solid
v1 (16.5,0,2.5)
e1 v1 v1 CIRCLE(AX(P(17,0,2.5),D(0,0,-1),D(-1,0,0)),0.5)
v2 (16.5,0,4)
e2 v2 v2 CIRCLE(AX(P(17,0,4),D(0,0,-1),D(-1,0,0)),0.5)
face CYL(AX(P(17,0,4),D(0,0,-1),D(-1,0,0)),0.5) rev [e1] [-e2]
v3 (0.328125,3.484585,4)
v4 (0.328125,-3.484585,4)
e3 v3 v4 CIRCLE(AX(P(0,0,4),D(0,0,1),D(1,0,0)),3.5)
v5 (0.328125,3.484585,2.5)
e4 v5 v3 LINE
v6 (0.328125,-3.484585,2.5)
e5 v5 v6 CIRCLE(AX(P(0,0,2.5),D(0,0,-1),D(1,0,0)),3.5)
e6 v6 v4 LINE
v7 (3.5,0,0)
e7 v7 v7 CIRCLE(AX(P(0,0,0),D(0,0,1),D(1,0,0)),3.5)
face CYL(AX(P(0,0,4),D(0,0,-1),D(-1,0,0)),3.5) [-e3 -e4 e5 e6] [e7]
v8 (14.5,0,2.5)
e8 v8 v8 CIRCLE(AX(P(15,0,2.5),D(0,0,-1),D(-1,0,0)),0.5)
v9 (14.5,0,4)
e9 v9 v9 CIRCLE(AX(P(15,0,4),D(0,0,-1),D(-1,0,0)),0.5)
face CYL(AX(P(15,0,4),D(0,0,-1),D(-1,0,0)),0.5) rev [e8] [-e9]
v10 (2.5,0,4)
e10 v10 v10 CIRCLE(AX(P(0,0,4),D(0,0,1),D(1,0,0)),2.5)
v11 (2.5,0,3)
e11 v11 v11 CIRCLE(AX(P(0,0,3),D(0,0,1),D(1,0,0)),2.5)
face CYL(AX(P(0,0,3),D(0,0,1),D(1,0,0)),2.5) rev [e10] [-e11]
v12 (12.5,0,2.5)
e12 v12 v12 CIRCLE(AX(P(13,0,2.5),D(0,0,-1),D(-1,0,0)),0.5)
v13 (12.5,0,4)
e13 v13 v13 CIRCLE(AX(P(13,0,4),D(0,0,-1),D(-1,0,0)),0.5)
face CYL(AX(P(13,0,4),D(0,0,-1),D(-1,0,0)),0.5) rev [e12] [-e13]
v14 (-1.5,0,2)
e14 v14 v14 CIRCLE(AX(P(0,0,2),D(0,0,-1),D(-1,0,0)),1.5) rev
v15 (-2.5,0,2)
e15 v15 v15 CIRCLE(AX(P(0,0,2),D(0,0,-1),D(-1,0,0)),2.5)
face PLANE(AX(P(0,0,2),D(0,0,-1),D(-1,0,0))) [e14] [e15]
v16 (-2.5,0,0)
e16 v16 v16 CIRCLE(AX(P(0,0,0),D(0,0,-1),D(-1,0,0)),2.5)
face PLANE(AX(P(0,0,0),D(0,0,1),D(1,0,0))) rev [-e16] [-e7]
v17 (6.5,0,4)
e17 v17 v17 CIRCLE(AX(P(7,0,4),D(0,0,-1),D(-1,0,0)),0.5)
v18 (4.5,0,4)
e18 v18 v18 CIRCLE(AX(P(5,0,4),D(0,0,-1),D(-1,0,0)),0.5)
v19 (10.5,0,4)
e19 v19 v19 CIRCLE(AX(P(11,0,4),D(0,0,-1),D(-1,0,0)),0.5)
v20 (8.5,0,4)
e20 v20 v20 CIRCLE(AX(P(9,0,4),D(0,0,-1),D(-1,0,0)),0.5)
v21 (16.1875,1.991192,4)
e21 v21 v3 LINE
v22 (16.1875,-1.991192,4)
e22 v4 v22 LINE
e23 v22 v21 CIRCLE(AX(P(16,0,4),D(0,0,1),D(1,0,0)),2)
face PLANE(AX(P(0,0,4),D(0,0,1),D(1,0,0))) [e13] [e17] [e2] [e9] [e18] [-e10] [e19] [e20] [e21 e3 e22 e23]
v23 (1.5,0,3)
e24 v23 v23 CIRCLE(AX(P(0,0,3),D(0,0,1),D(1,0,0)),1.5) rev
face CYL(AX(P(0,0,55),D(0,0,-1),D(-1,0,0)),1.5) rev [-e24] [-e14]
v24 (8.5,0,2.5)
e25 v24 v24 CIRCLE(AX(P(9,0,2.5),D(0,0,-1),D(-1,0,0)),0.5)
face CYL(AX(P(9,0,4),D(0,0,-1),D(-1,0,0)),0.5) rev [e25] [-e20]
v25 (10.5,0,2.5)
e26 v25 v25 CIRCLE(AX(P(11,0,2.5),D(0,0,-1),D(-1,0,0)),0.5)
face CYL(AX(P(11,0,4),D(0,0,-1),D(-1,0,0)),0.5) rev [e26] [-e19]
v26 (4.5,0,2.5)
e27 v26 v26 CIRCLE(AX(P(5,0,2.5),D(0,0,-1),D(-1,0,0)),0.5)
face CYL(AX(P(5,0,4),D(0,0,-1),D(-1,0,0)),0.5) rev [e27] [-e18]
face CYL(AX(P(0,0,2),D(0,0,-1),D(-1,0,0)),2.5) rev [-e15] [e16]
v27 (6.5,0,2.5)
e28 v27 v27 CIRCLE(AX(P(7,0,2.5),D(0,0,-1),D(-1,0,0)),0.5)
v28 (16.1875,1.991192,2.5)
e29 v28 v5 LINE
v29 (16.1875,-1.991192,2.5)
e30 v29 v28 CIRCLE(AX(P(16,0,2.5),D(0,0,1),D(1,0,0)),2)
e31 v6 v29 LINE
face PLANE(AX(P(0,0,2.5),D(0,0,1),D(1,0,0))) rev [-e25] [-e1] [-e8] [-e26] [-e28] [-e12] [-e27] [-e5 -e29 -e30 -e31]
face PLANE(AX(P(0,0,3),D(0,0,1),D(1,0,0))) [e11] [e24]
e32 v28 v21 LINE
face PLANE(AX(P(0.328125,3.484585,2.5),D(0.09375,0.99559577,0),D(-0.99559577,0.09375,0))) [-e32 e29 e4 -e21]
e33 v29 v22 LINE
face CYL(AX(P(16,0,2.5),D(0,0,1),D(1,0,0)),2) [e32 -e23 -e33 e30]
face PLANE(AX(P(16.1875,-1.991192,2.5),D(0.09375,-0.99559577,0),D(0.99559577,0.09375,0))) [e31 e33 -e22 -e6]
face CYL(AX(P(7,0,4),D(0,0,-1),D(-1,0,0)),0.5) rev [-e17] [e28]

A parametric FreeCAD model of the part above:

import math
import FreeCAD as App
import Part
import Sketcher
from FreeCAD import Vector

doc = App.newDocument("Part")
body = doc.addObject("PartDesign::Body", "Body")

sketch1 = body.newObject("Sketcher::SketchObject", "Sketch")
sketch1.AttachmentSupport = (doc.getObject("XY_Plane"), [""])
sketch1.MapMode = "FlatFace"
sketch1.addGeometry(Part.Circle(Vector(0, 0, 0), Vector(0, 0, 1), 3.5), False)
sketch1.addConstraint([
    Sketcher.Constraint("Coincident", 0, 3, -1, 1),
    Sketcher.Constraint("Diameter", 0, 7.0),
])
pad1 = body.newObject("PartDesign::Pad", "Pad")
pad1.Profile = sketch1
pad1.Length = 4

sketch2 = body.newObject("Sketcher::SketchObject", "Sketch001")
sketch2.AttachmentSupport = (doc.getObject("XY_Plane"), [""])
sketch2.MapMode = "FlatFace"
sketch2.AttachmentOffset = App.Placement(Vector(0, 0, 2.5), App.Rotation())
sketch2.addGeometry([
    Part.LineSegment(Vector(16.2, 2, 0), Vector(0.3, 3.5, 0)),
    Part.ArcOfCircle(Part.Circle(Vector(0, 0, 0), Vector(0, 0, 1), 3.5), math.radians(-85), math.radians(85)),
    Part.LineSegment(Vector(0.3, -3.5, 0), Vector(16.2, -2, 0)),
    Part.ArcOfCircle(Part.Circle(Vector(16, 0, 0), Vector(0, 0, 1), 2), math.radians(-85), math.radians(85)),
], False)
sketch2.addConstraint([
    Sketcher.Constraint("Tangent", 0, 2, 1, 2),
    Sketcher.Constraint("Tangent", 1, 1, 2, 1),
    Sketcher.Constraint("Tangent", 2, 2, 3, 1),
    Sketcher.Constraint("Tangent", 3, 2, 0, 1),
    Sketcher.Constraint("Coincident", 1, 3, -1, 1),
    Sketcher.Constraint("PointOnObject", 3, 3, -1),
    Sketcher.Constraint("Radius", 3, 2.0),
    Sketcher.Constraint("Radius", 1, 3.5),
    Sketcher.Constraint("DistanceX", -1, 1, 3, 3, 16.0),
])
pad2 = body.newObject("PartDesign::Pad", "Pad001")
pad2.Profile = sketch2
pad2.Length = 1.5

sketch3 = body.newObject("Sketcher::SketchObject", "Sketch002")
sketch3.AttachmentSupport = (doc.getObject("XY_Plane"), [""])
sketch3.MapMode = "FlatFace"
sketch3.AttachmentOffset = App.Placement(Vector(0, 0, 2.5), App.Rotation())
sketch3.addGeometry([
    Part.Circle(Vector(7, 0, 0), Vector(0, 0, 1), 0.5),
    Part.Circle(Vector(9, 0, 0), Vector(0, 0, 1), 0.5),
    Part.Circle(Vector(11, 0, 0), Vector(0, 0, 1), 0.5),
    Part.Circle(Vector(13, 0, 0), Vector(0, 0, 1), 0.5),
    Part.Circle(Vector(15, 0, 0), Vector(0, 0, 1), 0.5),
    Part.Circle(Vector(5, 0, 0), Vector(0, 0, 1), 0.5),
    Part.Circle(Vector(17, 0, 0), Vector(0, 0, 1), 0.5),
], False)
sketch3.addConstraint([
    Sketcher.Constraint("Equal", 0, 1),
    Sketcher.Constraint("Equal", 1, 2),
    Sketcher.Constraint("Equal", 2, 3),
    Sketcher.Constraint("Equal", 3, 4),
    Sketcher.Constraint("Equal", 4, 5),
    Sketcher.Constraint("Equal", 5, 6),
    Sketcher.Constraint("PointOnObject", 0, 3, -1),
    Sketcher.Constraint("PointOnObject", 1, 3, -1),
    Sketcher.Constraint("PointOnObject", 2, 3, -1),
    Sketcher.Constraint("PointOnObject", 3, 3, -1),
    Sketcher.Constraint("PointOnObject", 4, 3, -1),
    Sketcher.Constraint("PointOnObject", 5, 3, -1),
    Sketcher.Constraint("PointOnObject", 6, 3, -1),
    Sketcher.Constraint("Diameter", 0, 1.0),
    Sketcher.Constraint("DistanceX", -1, 1, 0, 3, 7.0),
    Sketcher.Constraint("DistanceX", -1, 1, 1, 3, 9.0),
    Sketcher.Constraint("DistanceX", -1, 1, 2, 3, 11.0),
    Sketcher.Constraint("DistanceX", -1, 1, 3, 3, 13.0),
    Sketcher.Constraint("DistanceX", -1, 1, 4, 3, 15.0),
    Sketcher.Constraint("DistanceX", -1, 1, 5, 3, 5.0),
    Sketcher.Constraint("DistanceX", -1, 1, 6, 3, 17.0),
])
pocket1 = body.newObject("PartDesign::Pocket", "Pocket")
pocket1.Profile = sketch3
pocket1.Length = 1.5
pocket1.Reversed = True

sketch4 = body.newObject("Sketcher::SketchObject", "Sketch003")
sketch4.AttachmentSupport = (doc.getObject("XY_Plane"), [""])
sketch4.MapMode = "FlatFace"
sketch4.addGeometry(Part.Circle(Vector(0, 0, 0), Vector(0, 0, 1), 1.5), False)
sketch4.addConstraint([
    Sketcher.Constraint("Coincident", 0, 3, -1, 1),
    Sketcher.Constraint("Diameter", 0, 3.0),
])
pocket2 = body.newObject("PartDesign::Pocket", "Pocket001")
pocket2.Profile = sketch4
pocket2.Length = 55
pocket2.Reversed = True

sketch5 = body.newObject("Sketcher::SketchObject", "Sketch004")
sketch5.AttachmentSupport = (doc.getObject("XY_Plane"), [""])
sketch5.MapMode = "FlatFace"
sketch5.addGeometry(Part.Circle(Vector(0, 0, 0), Vector(0, 0, 1), 2.5), False)
sketch5.addConstraint([
    Sketcher.Constraint("Coincident", 0, 3, -1, 1),
    Sketcher.Constraint("Diameter", 0, 5.0),
])
pocket3 = body.newObject("PartDesign::Pocket", "Pocket002")
pocket3.Profile = sketch5
pocket3.Length = 2
pocket3.Reversed = True

sketch6 = body.newObject("Sketcher::SketchObject", "Sketch005")
sketch6.AttachmentSupport = (doc.getObject("XY_Plane"), [""])
sketch6.MapMode = "FlatFace"
sketch6.AttachmentOffset = App.Placement(Vector(0, 0, 3), App.Rotation())
sketch6.addGeometry(Part.Circle(Vector(0, 0, 0), Vector(0, 0, 1), 2.5), False)
sketch6.addConstraint([
    Sketcher.Constraint("Coincident", 0, 3, -1, 1),
    Sketcher.Constraint("Diameter", 0, 5.0),
])
pocket4 = body.newObject("PartDesign::Pocket", "Pocket003")
pocket4.Profile = sketch6
pocket4.Length = 1
pocket4.Reversed = True

doc.recompute()
